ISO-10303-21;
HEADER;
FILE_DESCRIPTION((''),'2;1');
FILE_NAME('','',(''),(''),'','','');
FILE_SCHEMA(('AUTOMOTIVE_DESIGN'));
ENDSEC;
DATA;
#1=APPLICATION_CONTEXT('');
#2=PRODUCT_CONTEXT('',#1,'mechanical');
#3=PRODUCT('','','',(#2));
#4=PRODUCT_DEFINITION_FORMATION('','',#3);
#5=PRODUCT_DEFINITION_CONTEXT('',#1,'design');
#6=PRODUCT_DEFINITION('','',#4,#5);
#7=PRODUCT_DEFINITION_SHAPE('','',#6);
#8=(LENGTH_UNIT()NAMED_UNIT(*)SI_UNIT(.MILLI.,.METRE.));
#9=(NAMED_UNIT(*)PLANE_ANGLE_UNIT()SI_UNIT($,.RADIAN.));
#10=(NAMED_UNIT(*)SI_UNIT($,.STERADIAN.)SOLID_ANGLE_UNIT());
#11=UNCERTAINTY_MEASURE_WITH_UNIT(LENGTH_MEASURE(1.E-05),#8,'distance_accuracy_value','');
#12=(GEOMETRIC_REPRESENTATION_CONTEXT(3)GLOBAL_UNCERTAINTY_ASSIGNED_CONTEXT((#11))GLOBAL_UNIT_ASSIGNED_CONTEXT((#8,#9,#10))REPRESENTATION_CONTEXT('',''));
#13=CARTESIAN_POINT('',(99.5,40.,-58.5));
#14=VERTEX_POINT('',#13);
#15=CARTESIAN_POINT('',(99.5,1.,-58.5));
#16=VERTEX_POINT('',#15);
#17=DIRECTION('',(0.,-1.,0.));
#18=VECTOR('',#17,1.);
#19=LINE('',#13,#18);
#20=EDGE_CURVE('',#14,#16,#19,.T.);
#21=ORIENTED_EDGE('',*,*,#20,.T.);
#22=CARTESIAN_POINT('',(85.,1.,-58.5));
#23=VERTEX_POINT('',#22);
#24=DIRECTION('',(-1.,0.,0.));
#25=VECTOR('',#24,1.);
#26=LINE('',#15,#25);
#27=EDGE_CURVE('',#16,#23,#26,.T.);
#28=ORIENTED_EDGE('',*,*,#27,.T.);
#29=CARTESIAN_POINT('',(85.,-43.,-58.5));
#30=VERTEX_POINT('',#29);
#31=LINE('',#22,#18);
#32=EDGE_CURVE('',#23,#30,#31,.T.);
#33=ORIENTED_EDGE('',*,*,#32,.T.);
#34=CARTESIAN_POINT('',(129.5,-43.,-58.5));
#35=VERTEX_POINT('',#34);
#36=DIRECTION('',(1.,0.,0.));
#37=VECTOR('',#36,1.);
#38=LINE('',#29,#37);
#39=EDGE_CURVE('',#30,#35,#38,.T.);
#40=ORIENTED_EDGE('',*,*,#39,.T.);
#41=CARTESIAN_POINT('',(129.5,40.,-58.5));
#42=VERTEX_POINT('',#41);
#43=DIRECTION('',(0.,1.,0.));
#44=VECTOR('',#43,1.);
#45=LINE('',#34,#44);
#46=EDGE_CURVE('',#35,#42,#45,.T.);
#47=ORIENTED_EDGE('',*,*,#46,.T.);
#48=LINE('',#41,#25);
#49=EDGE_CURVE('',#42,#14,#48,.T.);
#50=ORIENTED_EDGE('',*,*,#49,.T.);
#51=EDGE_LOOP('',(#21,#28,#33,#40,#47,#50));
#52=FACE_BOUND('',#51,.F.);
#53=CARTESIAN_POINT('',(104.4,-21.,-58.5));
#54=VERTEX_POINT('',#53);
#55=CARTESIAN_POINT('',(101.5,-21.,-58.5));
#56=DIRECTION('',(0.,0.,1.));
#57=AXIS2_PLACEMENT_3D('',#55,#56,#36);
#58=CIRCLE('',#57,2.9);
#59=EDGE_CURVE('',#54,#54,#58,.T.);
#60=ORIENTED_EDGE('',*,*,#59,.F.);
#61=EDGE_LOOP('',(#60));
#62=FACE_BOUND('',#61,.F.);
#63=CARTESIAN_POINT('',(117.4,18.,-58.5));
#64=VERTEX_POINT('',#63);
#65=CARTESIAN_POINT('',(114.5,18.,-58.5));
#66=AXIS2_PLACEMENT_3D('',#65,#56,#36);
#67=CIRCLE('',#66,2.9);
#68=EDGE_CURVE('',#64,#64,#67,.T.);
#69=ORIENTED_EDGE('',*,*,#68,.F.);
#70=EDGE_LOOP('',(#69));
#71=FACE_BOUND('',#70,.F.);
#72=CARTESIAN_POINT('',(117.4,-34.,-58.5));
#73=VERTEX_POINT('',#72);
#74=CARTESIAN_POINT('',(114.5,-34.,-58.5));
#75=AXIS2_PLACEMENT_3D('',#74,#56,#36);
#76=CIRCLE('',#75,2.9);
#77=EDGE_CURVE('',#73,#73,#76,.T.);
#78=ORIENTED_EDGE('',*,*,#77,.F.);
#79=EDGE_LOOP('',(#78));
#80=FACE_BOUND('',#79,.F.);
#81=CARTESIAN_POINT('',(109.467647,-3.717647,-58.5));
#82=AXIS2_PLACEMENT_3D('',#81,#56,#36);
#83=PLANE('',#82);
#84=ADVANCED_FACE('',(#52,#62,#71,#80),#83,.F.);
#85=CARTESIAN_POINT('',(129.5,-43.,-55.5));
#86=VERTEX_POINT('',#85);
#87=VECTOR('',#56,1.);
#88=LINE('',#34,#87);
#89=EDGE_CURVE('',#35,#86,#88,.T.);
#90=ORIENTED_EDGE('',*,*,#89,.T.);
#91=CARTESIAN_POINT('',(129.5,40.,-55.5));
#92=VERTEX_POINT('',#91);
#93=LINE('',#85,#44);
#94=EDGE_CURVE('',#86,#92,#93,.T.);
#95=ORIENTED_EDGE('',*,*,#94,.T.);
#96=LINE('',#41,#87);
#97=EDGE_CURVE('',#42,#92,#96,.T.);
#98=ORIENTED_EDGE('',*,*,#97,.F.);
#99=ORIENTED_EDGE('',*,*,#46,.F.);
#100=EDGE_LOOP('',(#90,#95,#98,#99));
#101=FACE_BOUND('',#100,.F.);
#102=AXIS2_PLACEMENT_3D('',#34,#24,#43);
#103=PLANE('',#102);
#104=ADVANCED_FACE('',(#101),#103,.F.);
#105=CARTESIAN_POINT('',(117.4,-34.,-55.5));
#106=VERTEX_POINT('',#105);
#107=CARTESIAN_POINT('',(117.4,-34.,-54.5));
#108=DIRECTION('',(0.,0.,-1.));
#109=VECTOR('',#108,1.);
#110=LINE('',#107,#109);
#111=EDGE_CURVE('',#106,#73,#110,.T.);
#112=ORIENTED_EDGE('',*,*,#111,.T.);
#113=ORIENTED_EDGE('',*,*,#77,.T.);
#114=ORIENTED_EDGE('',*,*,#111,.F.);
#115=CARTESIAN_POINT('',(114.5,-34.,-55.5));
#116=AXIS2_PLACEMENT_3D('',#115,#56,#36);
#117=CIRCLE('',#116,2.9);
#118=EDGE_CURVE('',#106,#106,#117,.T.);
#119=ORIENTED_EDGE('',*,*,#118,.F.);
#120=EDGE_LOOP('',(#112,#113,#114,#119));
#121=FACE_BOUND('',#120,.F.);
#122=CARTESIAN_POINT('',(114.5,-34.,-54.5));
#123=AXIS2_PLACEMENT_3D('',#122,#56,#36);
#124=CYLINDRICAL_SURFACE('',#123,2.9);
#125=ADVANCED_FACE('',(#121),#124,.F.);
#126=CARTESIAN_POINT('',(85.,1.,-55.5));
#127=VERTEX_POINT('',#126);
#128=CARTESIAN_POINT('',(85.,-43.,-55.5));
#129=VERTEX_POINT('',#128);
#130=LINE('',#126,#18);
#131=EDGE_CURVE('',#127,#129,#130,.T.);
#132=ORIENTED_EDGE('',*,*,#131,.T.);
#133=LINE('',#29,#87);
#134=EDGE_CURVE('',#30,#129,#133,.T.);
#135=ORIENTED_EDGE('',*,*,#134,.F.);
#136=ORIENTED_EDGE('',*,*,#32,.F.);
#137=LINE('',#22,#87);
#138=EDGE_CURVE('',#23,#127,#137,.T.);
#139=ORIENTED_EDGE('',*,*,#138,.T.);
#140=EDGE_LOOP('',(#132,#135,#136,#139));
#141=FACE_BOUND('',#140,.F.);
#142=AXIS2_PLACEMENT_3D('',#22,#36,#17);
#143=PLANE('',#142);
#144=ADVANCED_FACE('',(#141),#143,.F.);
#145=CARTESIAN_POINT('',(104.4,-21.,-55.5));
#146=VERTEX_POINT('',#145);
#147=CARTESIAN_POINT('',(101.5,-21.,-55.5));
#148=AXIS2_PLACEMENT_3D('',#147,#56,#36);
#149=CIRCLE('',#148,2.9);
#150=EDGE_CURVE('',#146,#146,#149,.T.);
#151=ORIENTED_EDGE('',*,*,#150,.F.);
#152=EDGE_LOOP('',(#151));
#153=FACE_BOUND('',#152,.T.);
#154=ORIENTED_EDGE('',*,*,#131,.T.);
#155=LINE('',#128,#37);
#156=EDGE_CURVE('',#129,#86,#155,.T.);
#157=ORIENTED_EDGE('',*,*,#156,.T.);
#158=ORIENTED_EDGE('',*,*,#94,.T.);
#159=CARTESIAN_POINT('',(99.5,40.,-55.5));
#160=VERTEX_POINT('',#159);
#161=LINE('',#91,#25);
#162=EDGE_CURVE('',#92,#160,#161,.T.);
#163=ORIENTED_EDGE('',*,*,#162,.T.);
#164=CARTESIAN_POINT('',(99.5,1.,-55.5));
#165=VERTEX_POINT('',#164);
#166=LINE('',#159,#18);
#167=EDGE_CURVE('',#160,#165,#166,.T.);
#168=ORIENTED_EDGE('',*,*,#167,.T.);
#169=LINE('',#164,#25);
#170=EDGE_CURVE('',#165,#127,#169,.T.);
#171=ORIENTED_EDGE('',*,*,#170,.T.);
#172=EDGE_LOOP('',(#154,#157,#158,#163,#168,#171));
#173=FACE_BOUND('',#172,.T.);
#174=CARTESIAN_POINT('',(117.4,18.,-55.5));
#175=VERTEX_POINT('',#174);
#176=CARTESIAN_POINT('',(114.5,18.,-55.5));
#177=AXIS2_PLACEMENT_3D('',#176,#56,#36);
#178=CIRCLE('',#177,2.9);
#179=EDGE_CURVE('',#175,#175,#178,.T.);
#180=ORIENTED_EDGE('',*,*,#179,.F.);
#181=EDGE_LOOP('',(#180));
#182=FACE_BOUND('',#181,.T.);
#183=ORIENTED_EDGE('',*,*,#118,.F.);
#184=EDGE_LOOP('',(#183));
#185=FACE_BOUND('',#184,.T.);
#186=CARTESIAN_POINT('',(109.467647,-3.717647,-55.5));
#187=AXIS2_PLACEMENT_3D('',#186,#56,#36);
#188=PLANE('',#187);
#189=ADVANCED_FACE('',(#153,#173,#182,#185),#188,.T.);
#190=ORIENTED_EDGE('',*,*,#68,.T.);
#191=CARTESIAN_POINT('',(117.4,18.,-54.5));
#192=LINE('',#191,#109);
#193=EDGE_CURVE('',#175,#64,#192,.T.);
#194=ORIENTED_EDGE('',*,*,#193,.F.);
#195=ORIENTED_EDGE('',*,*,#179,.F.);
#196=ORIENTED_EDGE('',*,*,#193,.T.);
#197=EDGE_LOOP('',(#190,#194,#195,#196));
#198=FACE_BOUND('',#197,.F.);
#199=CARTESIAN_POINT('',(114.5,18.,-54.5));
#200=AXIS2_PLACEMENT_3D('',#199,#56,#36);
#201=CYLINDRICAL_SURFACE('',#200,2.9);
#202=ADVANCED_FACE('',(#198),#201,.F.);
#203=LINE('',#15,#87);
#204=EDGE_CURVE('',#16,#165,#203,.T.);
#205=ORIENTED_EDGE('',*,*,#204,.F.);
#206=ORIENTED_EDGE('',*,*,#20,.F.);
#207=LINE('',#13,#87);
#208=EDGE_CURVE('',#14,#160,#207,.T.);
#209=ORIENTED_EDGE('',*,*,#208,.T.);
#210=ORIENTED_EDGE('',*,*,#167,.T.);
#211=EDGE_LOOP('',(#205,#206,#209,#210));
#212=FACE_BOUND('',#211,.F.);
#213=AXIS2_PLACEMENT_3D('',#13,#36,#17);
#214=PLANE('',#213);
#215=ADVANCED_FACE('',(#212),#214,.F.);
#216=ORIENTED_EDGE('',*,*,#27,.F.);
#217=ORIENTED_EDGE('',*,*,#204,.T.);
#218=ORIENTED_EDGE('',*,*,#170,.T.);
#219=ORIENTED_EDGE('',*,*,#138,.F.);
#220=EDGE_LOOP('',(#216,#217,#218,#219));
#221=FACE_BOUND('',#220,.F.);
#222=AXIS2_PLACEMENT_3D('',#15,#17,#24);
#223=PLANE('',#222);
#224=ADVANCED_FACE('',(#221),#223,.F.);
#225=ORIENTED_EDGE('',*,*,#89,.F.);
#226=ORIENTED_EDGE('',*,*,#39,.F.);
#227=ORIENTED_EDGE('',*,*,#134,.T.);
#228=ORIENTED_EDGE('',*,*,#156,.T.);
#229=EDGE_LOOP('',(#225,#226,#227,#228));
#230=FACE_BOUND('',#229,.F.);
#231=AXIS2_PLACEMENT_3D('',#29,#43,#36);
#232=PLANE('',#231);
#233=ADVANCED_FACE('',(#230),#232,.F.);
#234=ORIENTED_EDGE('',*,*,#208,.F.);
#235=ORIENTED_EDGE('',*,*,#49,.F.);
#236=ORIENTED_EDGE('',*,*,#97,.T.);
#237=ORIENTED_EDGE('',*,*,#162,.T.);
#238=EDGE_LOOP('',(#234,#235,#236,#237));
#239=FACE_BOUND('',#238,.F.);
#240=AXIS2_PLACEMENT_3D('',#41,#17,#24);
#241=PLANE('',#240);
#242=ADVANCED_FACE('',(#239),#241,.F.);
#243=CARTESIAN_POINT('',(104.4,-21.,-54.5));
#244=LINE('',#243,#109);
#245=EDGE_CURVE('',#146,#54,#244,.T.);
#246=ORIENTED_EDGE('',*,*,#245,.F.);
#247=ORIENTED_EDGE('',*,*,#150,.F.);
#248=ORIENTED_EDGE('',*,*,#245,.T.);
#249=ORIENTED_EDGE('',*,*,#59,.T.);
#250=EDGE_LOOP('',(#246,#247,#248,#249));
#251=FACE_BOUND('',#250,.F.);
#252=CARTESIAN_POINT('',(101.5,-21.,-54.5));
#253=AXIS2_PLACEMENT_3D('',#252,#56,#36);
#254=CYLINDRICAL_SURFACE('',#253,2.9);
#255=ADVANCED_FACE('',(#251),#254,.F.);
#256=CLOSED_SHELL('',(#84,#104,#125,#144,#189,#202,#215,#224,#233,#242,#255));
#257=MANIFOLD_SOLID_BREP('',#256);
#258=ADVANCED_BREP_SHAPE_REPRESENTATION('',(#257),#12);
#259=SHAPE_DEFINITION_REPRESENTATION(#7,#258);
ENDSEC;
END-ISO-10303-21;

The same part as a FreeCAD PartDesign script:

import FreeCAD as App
import Part
import Sketcher

V = App.Vector


def add_polygon(sketch, points):
    """Adds a closed chain of lines whose ends are joined by coincident constraints."""
    first, n = sketch.GeometryCount, len(points)
    for a, b in zip(points, points[1:] + points[:1]):
        sketch.addGeometry(Part.LineSegment(App.Vector(*a, 0), App.Vector(*b, 0)), False)
    for i in range(n):
        sketch.addConstraint(Sketcher.Constraint("Coincident", first + i, 2, first + (i + 1) % n, 1))

doc = App.newDocument("Part")
body = doc.addObject("PartDesign::Body", "Body")

# Sketch on XY plane
sketch1 = body.newObject("Sketcher::SketchObject", "Sketch")
sketch1.AttachmentSupport = (doc.getObject("XY_Plane"), [""])
sketch1.MapMode = "FlatFace"
sketch1.AttachmentOffset = App.Placement(V(0, 0, -58.5), App.Rotation())
add_polygon(sketch1, [(111, 40), (81, 40), (81, 1), (66, 1), (66, -43), (111, -43)])  # lines 0-5
sketch1.addConstraint(Sketcher.Constraint("Horizontal", 0))
sketch1.addConstraint(Sketcher.Constraint("Vertical", 1))
sketch1.addConstraint(Sketcher.Constraint("Horizontal", 2))
sketch1.addConstraint(Sketcher.Constraint("Vertical", 3))
sketch1.addConstraint(Sketcher.Constraint("Horizontal", 4))
sketch1.addConstraint(Sketcher.Constraint("Vertical", 5))
sketch1.addConstraint(Sketcher.Constraint("DistanceX", 0, 2, 0, 1, 30.0))
sketch1.addConstraint(Sketcher.Constraint("DistanceY", 1, 2, 1, 1, 39.0))
sketch1.addConstraint(Sketcher.Constraint("DistanceY", 3, 2, 3, 1, 44.0))
sketch1.addConstraint(Sketcher.Constraint("DistanceX", 2, 2, 2, 1, 14.5))
sketch1.addConstraint(Sketcher.Constraint("DistanceX", -1, 1, 0, 2, 81.0))
sketch1.addConstraint(Sketcher.Constraint("DistanceY", -1, 1, 0, 2, 40.0))
pad1 = body.newObject("PartDesign::Pad", "Pad")
pad1.Profile = sketch1
pad1.Length = 3

# Sketch on XY plane
sketch2 = body.newObject("Sketcher::SketchObject", "Sketch001")
sketch2.AttachmentSupport = (doc.getObject("XY_Plane"), [""])
sketch2.MapMode = "FlatFace"
sketch2.AttachmentOffset = App.Placement(V(0, 0, -54.5), App.Rotation())
sketch2.addGeometry(Part.Circle(V(96, 18, 0), V(0, 0, 1), 2.9), False)
sketch2.addGeometry(Part.Circle(V(83, -21, 0), V(0, 0, 1), 2.9), False)
sketch2.addGeometry(Part.Circle(V(96, -34, 0), V(0, 0, 1), 2.9), False)
sketch2.addConstraint(Sketcher.Constraint("Equal", 0, 1))
sketch2.addConstraint(Sketcher.Constraint("Equal", 1, 2))
sketch2.addConstraint(Sketcher.Constraint("Vertical", 0, 3, 2, 3))
sketch2.addConstraint(Sketcher.Constraint("Diameter", 0, 5.8))
sketch2.addConstraint(Sketcher.Constraint("DistanceX", -1, 1, 0, 3, 96.0))
sketch2.addConstraint(Sketcher.Constraint("DistanceY", -1, 1, 0, 3, 18.0))
sketch2.addConstraint(Sketcher.Constraint("DistanceX", -1, 1, 1, 3, 83.0))
sketch2.addConstraint(Sketcher.Constraint("DistanceY", 1, 3, -1, 1, 21.0))
sketch2.addConstraint(Sketcher.Constraint("DistanceY", 2, 3, -1, 1, 34.0))
pocket1 = body.newObject("PartDesign::Pocket", "Pocket")
pocket1.Profile = sketch2
pocket1.Type = "ThroughAll"
body2 = doc.addObject("PartDesign::Body", "Body001")
doc.recompute()

body.Placement = App.Placement(V(18.5, 0, 0), App.Rotation(V(0, 0, 1), 0))
boolean = body2.newObject("PartDesign::Boolean", "Boolean")
boolean.Type = "Fuse"
boolean.addObjects([body])

doc.recompute()
